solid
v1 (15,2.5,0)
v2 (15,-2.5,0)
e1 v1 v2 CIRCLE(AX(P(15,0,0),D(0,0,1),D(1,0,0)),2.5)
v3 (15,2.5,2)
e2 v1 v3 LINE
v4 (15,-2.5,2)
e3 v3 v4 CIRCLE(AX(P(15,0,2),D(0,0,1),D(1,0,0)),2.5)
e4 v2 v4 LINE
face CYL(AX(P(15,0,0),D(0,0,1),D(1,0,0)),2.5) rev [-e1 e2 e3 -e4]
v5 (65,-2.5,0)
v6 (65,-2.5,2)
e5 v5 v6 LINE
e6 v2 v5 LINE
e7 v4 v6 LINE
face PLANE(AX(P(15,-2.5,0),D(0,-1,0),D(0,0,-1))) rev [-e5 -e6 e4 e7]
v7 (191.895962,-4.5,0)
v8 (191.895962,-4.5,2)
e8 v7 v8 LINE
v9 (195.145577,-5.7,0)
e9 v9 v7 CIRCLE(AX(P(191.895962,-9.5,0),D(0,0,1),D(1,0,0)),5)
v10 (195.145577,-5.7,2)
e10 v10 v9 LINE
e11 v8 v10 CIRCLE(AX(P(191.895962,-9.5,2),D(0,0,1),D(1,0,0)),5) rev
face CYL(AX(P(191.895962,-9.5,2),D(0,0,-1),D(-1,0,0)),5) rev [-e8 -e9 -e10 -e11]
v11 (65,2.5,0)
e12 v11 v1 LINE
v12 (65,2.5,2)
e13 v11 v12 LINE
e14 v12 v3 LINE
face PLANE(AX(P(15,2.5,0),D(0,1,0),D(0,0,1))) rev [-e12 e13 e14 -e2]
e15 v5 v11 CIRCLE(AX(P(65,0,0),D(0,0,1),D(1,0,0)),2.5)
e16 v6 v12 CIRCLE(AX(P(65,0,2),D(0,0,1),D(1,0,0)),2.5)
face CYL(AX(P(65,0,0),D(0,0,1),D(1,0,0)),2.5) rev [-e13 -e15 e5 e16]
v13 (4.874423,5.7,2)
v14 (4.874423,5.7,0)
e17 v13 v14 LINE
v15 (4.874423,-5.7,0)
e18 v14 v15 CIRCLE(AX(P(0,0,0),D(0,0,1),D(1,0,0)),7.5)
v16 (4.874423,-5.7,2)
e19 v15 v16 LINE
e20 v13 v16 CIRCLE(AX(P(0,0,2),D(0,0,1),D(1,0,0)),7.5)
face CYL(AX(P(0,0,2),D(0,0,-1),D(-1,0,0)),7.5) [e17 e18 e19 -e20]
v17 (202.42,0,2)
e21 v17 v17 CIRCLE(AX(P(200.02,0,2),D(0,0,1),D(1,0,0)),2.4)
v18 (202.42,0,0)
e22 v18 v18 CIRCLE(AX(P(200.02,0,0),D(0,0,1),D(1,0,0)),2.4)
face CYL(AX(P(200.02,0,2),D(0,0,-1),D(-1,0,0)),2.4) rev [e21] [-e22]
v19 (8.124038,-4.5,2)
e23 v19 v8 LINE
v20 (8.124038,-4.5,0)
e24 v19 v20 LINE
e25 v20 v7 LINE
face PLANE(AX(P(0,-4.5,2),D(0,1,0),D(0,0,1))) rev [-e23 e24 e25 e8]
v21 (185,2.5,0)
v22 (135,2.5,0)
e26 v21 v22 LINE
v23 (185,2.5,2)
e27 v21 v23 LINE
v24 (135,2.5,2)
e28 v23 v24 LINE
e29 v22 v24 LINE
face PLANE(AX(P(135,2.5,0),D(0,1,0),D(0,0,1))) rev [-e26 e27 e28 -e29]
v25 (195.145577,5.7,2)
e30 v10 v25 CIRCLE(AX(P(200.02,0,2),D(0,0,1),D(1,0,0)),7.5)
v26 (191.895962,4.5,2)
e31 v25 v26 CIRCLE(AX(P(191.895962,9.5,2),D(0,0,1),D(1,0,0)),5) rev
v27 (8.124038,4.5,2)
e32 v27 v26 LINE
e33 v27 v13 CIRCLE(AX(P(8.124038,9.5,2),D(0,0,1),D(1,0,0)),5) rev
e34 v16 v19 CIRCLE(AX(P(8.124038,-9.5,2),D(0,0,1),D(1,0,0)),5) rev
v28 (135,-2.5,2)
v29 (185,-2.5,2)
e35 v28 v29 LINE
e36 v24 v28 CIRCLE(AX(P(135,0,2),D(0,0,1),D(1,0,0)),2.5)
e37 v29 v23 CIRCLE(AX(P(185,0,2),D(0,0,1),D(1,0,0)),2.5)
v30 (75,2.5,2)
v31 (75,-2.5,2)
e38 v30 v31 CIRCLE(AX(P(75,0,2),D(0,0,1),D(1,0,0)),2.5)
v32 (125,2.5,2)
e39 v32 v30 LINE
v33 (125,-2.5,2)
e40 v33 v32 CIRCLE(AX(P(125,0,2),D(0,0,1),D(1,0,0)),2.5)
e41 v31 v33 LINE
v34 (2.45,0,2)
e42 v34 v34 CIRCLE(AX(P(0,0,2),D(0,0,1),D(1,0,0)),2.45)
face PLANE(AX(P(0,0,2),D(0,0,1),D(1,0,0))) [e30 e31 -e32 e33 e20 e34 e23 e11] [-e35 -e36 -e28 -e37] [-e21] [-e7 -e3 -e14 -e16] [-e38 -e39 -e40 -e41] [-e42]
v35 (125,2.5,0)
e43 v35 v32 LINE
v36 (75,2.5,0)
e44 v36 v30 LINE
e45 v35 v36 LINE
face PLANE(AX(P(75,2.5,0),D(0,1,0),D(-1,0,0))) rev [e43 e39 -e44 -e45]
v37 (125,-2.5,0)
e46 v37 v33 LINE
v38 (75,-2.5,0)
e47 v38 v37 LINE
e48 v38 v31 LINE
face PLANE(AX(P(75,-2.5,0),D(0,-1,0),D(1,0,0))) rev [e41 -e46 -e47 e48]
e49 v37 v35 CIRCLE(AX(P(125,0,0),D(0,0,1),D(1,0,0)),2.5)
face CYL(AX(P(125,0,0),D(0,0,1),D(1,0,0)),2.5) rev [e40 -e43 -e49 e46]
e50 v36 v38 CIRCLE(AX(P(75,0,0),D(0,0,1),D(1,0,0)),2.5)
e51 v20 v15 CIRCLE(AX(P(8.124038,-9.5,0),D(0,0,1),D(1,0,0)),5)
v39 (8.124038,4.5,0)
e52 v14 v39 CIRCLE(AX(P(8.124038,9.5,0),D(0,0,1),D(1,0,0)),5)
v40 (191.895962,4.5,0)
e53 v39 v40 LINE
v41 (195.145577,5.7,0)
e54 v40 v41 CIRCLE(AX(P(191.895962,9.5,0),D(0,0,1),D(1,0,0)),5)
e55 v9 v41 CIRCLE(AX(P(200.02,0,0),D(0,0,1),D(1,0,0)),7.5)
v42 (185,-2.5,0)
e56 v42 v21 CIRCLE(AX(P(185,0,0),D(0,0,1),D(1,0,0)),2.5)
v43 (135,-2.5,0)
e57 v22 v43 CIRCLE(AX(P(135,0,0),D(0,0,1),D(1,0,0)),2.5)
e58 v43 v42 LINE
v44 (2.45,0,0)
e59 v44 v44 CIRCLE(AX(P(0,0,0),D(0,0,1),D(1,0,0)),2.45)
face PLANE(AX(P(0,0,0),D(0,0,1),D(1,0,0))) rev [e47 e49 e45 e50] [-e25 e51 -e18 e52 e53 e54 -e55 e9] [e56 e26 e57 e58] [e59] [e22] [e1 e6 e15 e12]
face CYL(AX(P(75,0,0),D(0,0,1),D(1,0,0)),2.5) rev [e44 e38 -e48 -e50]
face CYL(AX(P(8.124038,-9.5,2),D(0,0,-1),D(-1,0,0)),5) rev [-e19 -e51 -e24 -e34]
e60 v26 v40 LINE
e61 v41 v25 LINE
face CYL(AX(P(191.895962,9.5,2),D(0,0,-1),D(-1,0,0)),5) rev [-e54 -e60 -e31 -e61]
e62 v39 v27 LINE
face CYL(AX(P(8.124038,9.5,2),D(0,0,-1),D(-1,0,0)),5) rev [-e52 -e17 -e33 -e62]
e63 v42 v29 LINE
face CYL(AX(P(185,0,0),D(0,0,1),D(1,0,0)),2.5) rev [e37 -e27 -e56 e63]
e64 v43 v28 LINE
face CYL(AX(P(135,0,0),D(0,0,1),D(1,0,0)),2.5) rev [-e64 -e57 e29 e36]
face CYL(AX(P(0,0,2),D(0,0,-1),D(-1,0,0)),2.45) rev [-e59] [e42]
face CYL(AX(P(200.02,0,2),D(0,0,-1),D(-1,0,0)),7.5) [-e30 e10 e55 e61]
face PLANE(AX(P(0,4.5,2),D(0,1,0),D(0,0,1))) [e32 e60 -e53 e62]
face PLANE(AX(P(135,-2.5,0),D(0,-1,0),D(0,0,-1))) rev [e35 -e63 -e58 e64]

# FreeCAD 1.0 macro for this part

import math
import FreeCAD as App
import Part
import Sketcher
Q = App.Units.Quantity


def edges_at(feature, points):
    """Names of the edges that pass closest to the given points."""
    edges = feature.Shape.Edges
    near = lambda p: min(range(len(edges)), key=lambda i: edges[i].distToShape(Part.Vertex(*p))[0])
    return sorted({f"Edge{near(p) + 1}" for p in points})

doc = App.newDocument("Part")
body = doc.addObject("PartDesign::Body", "Body")

sketch1 = body.newObject("Sketcher::SketchObject", "Sketch")
sketch1.AttachmentSupport = (doc.getObject("XY_Plane"), [""])
sketch1.MapMode = "FlatFace"
sketch1.addGeometry(Part.LineSegment(App.Vector(6, -4.5, 0), App.Vector(194, -4.5, 0)), False)
sketch1.addGeometry(Part.ArcOfCircle(Part.Circle(App.Vector(200, 0, 0), App.Vector(0, 0, 1), 7.5), math.radians(-143), math.radians(143)), False)
sketch1.addGeometry(Part.LineSegment(App.Vector(194, 4.5, 0), App.Vector(6, 4.5, 0)), False)
sketch1.addGeometry(Part.ArcOfCircle(Part.Circle(App.Vector(0, 0, 0), App.Vector(0, 0, 1), 7.5), math.radians(37), math.radians(323)), False)
sketch1.addGeometry(Part.Circle(App.Vector(0, 0, 0), App.Vector(0, 0, 1), 2.5), False)
sketch1.addGeometry(Part.Circle(App.Vector(200, 0, 0), App.Vector(0, 0, 1), 2.4), False)
sketch1.addConstraint(Sketcher.Constraint("Coincident", 0, 2, 1, 1))
sketch1.addConstraint(Sketcher.Constraint("Coincident", 1, 2, 2, 1))
sketch1.addConstraint(Sketcher.Constraint("Coincident", 2, 2, 3, 1))
sketch1.addConstraint(Sketcher.Constraint("Coincident", 3, 2, 0, 1))
sketch1.addConstraint(Sketcher.Constraint("Horizontal", 0))
sketch1.addConstraint(Sketcher.Constraint("Horizontal", 2))
sketch1.addConstraint(Sketcher.Constraint("Coincident", 3, 3, -1, 1))
sketch1.addConstraint(Sketcher.Constraint("Coincident", 4, 3, -1, 1))
sketch1.addConstraint(Sketcher.Constraint("Coincident", 5, 3, 1, 3))
sketch1.addConstraint(Sketcher.Constraint("Equal", 1, 3))
sketch1.addConstraint(Sketcher.Constraint("Symmetric", 0, 2, 1, 2, -1))
sketch1.addConstraint(Sketcher.Constraint("Diameter", 4, Q("4.9 mm")))
sketch1.addConstraint(Sketcher.Constraint("Diameter", 5, Q("4.8 mm")))
sketch1.addConstraint(Sketcher.Constraint("Radius", 1, Q("7.5 mm")))
sketch1.addConstraint(Sketcher.Constraint("DistanceX", -1, 1, 2, 2, Q("6 mm")))
sketch1.addConstraint(Sketcher.Constraint("DistanceX", 0, 1, 0, 2, Q("188.02 mm")))
pad1 = body.newObject("PartDesign::Pad", "Pad")
pad1.Profile = sketch1
pad1.Length = 2

sketch2 = body.newObject("Sketcher::SketchObject", "Sketch001")
sketch2.AttachmentSupport = (doc.getObject("XY_Plane"), [""])
sketch2.MapMode = "FlatFace"
sketch2.AttachmentOffset = App.Placement(App.Vector(0, 0, 2), App.Rotation())
sketch2.addGeometry(Part.LineSegment(App.Vector(125, 2.5, 0), App.Vector(75, 2.5, 0)), False)
sketch2.addGeometry(Part.ArcOfCircle(Part.Circle(App.Vector(75, 0, 0), App.Vector(0, 0, 1), 2.5), math.radians(90), math.radians(270)), False)
sketch2.addGeometry(Part.LineSegment(App.Vector(75, -2.5, 0), App.Vector(125, -2.5, 0)), False)
sketch2.addGeometry(Part.ArcOfCircle(Part.Circle(App.Vector(125, 0, 0), App.Vector(0, 0, 1), 2.5), math.radians(-90), math.radians(90)), False)
sketch2.addGeometry(Part.LineSegment(App.Vector(185, 2.5, 0), App.Vector(135, 2.5, 0)), False)
sketch2.addGeometry(Part.ArcOfCircle(Part.Circle(App.Vector(135, 0, 0), App.Vector(0, 0, 1), 2.5), math.radians(90), math.radians(270)), False)
sketch2.addGeometry(Part.LineSegment(App.Vector(135, -2.5, 0), App.Vector(185, -2.5, 0)), False)
sketch2.addGeometry(Part.ArcOfCircle(Part.Circle(App.Vector(185, 0, 0), App.Vector(0, 0, 1), 2.5), math.radians(-90), math.radians(90)), False)
sketch2.addGeometry(Part.LineSegment(App.Vector(65, 2.5, 0), App.Vector(15, 2.5, 0)), False)
sketch2.addGeometry(Part.ArcOfCircle(Part.Circle(App.Vector(15, 0, 0), App.Vector(0, 0, 1), 2.5), math.radians(90), math.radians(270)), False)
sketch2.addGeometry(Part.LineSegment(App.Vector(15, -2.5, 0), App.Vector(65, -2.5, 0)), False)
sketch2.addGeometry(Part.ArcOfCircle(Part.Circle(App.Vector(65, 0, 0), App.Vector(0, 0, 1), 2.5), math.radians(-90), math.radians(90)), False)
sketch2.addConstraint(Sketcher.Constraint("Tangent", 0, 2, 1, 1))
sketch2.addConstraint(Sketcher.Constraint("Tangent", 1, 2, 2, 1))
sketch2.addConstraint(Sketcher.Constraint("Tangent", 2, 2, 3, 1))
sketch2.addConstraint(Sketcher.Constraint("Tangent", 3, 2, 0, 1))
sketch2.addConstraint(Sketcher.Constraint("Tangent", 4, 2, 5, 1))
sketch2.addConstraint(Sketcher.Constraint("Tangent", 5, 2, 6, 1))
sketch2.addConstraint(Sketcher.Constraint("Tangent", 6, 2, 7, 1))
sketch2.addConstraint(Sketcher.Constraint("Tangent", 7, 2, 4, 1))
sketch2.addConstraint(Sketcher.Constraint("Tangent", 8, 2, 9, 1))
sketch2.addConstraint(Sketcher.Constraint("Tangent", 9, 2, 10, 1))
sketch2.addConstraint(Sketcher.Constraint("Tangent", 10, 2, 11, 1))
sketch2.addConstraint(Sketcher.Constraint("Tangent", 11, 2, 8, 1))
sketch2.addConstraint(Sketcher.Constraint("Horizontal", 0))
sketch2.addConstraint(Sketcher.Constraint("Horizontal", 2))
sketch2.addConstraint(Sketcher.Constraint("Horizontal", 4))
sketch2.addConstraint(Sketcher.Constraint("Horizontal", 6))
sketch2.addConstraint(Sketcher.Constraint("Horizontal", 8))
sketch2.addConstraint(Sketcher.Constraint("Horizontal", 10))
sketch2.addConstraint(Sketcher.Constraint("Equal", 3, 5))
sketch2.addConstraint(Sketcher.Constraint("Equal", 7, 9))
sketch2.addConstraint(Sketcher.Constraint("PointOnObject", 1, 3, -1))
sketch2.addConstraint(Sketcher.Constraint("PointOnObject", 5, 3, -1))
sketch2.addConstraint(Sketcher.Constraint("PointOnObject", 9, 3, -1))
sketch2.addConstraint(Sketcher.Constraint("Equal", 2, 4))
sketch2.addConstraint(Sketcher.Constraint("Equal", 6, 8))
sketch2.addConstraint(Sketcher.Constraint("Radius", 1, Q("2.5 mm")))
sketch2.addConstraint(Sketcher.Constraint("DistanceX", 0, 2, 0, 1, Q("50 mm")))
sketch2.addConstraint(Sketcher.Constraint("DistanceX", -1, 1, 1, 3, Q("75 mm")))
sketch2.addConstraint(Sketcher.Constraint("DistanceX", -1, 1, 5, 3, Q("135 mm")))
sketch2.addConstraint(Sketcher.Constraint("DistanceX", -1, 1, 9, 3, Q("15 mm")))
pocket1 = body.newObject("PartDesign::Pocket", "Pocket")
pocket1.Profile = sketch2
pocket1.Type = "ThroughAll"
doc.recompute()

fillet = body.newObject("PartDesign::Fillet", "Fillet")
fillet.Base = (pocket1, edges_at(pocket1, [
    (6, -4.5, 1),
    (6, 4.5, 1),
    (194.02, 4.5, 1),
    (194.02, -4.5, 1),
]))
fillet.Radius = 5

doc.recompute()
